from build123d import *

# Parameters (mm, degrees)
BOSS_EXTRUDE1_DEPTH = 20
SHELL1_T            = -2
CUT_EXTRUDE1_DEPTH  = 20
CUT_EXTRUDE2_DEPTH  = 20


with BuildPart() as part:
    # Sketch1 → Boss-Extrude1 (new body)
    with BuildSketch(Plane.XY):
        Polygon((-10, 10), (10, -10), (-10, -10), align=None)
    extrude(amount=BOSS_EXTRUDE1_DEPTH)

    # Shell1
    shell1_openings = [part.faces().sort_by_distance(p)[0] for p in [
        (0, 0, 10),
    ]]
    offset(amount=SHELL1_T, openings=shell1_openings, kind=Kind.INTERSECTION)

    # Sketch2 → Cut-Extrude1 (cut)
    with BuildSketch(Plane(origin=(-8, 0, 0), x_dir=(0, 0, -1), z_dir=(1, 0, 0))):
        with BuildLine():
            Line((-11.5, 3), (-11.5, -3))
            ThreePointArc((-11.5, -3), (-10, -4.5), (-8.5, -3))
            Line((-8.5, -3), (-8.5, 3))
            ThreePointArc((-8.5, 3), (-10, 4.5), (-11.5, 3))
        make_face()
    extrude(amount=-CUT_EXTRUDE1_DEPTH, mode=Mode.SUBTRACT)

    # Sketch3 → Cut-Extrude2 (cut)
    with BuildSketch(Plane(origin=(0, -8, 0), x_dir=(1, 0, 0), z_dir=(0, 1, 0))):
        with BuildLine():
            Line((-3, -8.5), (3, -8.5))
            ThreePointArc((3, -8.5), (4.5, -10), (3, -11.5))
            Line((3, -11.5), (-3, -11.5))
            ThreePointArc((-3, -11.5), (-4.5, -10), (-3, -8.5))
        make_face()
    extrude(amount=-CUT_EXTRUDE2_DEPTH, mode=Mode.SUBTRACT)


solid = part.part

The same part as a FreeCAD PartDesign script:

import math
import FreeCAD as App
import Part
import Sketcher
from FreeCAD import Vector
Q = App.Units.Quantity


def faces_at(feature, points):
    """Names of the faces that lie closest to the given points."""
    faces = feature.Shape.Faces
    near = lambda p: min(range(len(faces)), key=lambda i: faces[i].distToShape(Part.Vertex(*p))[0])
    return sorted({f"Face{near(p) + 1}" for p in points})

doc = App.newDocument("Part")
params = doc.addObject("Spreadsheet::Sheet", "Params")
for row, (alias, value) in enumerate([
    ("sketch1_width", "20 mm"),
    ("pad1_length", "20 mm"),
    ("thickness_wall", "2 mm"),
    ("sketch2_radius", "1.5 mm"),
    ("sketch2_width", "6 mm"),
    ("pocket1_length", "20 mm"),
    ("sketch3_radius", "1.5 mm"),
    ("sketch3_width", "6 mm"),
    ("pocket2_length", "20 mm"),
], start=1):
    params.set(f"A{row}", alias)
    params.set(f"B{row}", "=" + value)
    params.setAlias(f"B{row}", alias)

body = doc.addObject("PartDesign::Body", "Body")

# Sketch on XY plane
sketch1 = body.newObject("Sketcher::SketchObject", "Sketch")
sketch1.AttachmentSupport = (doc.getObject("XY_Plane"), [""])
sketch1.MapMode = "FlatFace"
sketch1.addGeometry([
    Part.LineSegment(Vector(10, -10, 0), Vector(-10, 10, 0)),
    Part.LineSegment(Vector(-10, 10, 0), Vector(-10, -10, 0)),
    Part.LineSegment(Vector(-10, -10, 0), Vector(10, -10, 0)),
], False)
sketch1.addConstraint([
    Sketcher.Constraint("Coincident", 0, 2, 1, 1),
    Sketcher.Constraint("Coincident", 1, 2, 2, 1),
    Sketcher.Constraint("Coincident", 2, 2, 0, 1),
    Sketcher.Constraint("Vertical", 1),
    Sketcher.Constraint("Horizontal", 2),
    Sketcher.Constraint("Symmetric", 0, 2, 2, 2, -1, 1),
    Sketcher.Constraint("Equal", 2, 1),
    Sketcher.Constraint("DistanceX", 2, 1, 2, 2, Q("20 mm")),
])
sketch1.setExpression("Constraints[7]", "Params.sketch1_width")
pad1 = body.newObject("PartDesign::Pad", "Pad")
pad1.Profile = sketch1
pad1.setExpression("Length", "Params.pad1_length")
doc.recompute()

thickness = body.newObject("PartDesign::Thickness", "Thickness")
thickness.Base = (pad1, faces_at(pad1, [(0, 0, 10)]))
thickness.setExpression("Value", "Params.thickness_wall")
thickness.Reversed = True
thickness.Join = "Intersection"

# Sketch on YZ plane
sketch2 = body.newObject("Sketcher::SketchObject", "Sketch001")
sketch2.AttachmentSupport = (doc.getObject("YZ_Plane"), [""])
sketch2.MapMode = "FlatFace"
sketch2.AttachmentOffset = App.Placement(Vector(0, 0, -8), App.Rotation())
sketch2.addGeometry([
    Part.LineSegment(Vector(3, 11.5, 0), Vector(-3, 11.5, 0)),
    Part.ArcOfCircle(Part.Circle(Vector(-3, 10, 0), Vector(0, 0, 1), 1.5), math.radians(90), math.radians(270)),
    Part.LineSegment(Vector(-3, 8.5, 0), Vector(3, 8.5, 0)),
    Part.ArcOfCircle(Part.Circle(Vector(3, 10, 0), Vector(0, 0, 1), 1.5), math.radians(-90), math.radians(90)),
], False)
sketch2.addConstraint([
    Sketcher.Constraint("Tangent", 0, 2, 1, 1),
    Sketcher.Constraint("Tangent", 1, 2, 2, 1),
    Sketcher.Constraint("Tangent", 2, 2, 3, 1),
    Sketcher.Constraint("Tangent", 3, 2, 0, 1),
    Sketcher.Constraint("Horizontal", 0),
    Sketcher.Constraint("Horizontal", 2),
    Sketcher.Constraint("Radius", 1, Q("1.5 mm")),
    Sketcher.Constraint("DistanceX", 0, 2, 0, 1, Q("6 mm")),
    Sketcher.Constraint("DistanceX", 1, 3, -1, 1, Q("3 mm")),
    Sketcher.Constraint("DistanceY", -1, 1, 1, 3, Q("10 mm")),
])
sketch2.setExpression("Constraints[6]", "Params.sketch2_radius")
sketch2.setExpression("Constraints[7]", "Params.sketch2_width")
pocket1 = body.newObject("PartDesign::Pocket", "Pocket")
pocket1.Profile = sketch2
pocket1.setExpression("Length", "Params.pocket1_length")

# Sketch on XZ plane
sketch3 = body.newObject("Sketcher::SketchObject", "Sketch002")
sketch3.AttachmentSupport = (doc.getObject("XZ_Plane"), [""])
sketch3.MapMode = "FlatFace"
sketch3.AttachmentOffset = App.Placement(Vector(0, 0, 8), App.Rotation())
sketch3.addGeometry([
    Part.LineSegment(Vector(3, 8.5, 0), Vector(-3, 8.5, 0)),
    Part.ArcOfCircle(Part.Circle(Vector(-3, 10, 0), Vector(0, 0, 1), 1.5), math.radians(90), math.radians(270)),
    Part.LineSegment(Vector(-3, 11.5, 0), Vector(3, 11.5, 0)),
    Part.ArcOfCircle(Part.Circle(Vector(3, 10, 0), Vector(0, 0, 1), 1.5), math.radians(-90), math.radians(90)),
], False)
sketch3.addConstraint([
    Sketcher.Constraint("Tangent", 0, 2, 1, 2),
    Sketcher.Constraint("Tangent", 1, 1, 2, 1),
    Sketcher.Constraint("Tangent", 2, 2, 3, 2),
    Sketcher.Constraint("Tangent", 3, 1, 0, 1),
    Sketcher.Constraint("Horizontal", 0),
    Sketcher.Constraint("Horizontal", 2),
    Sketcher.Constraint("Radius", 1, Q("1.5 mm")),
    Sketcher.Constraint("DistanceX", 0, 2, 0, 1, Q("6 mm")),
    Sketcher.Constraint("DistanceX", 1, 3, -1, 1, Q("3 mm")),
    Sketcher.Constraint("DistanceY", -1, 1, 1, 3, Q("10 mm")),
])
sketch3.setExpression("Constraints[6]", "Params.sketch3_radius")
sketch3.setExpression("Constraints[7]", "Params.sketch3_width")
pocket2 = body.newObject("PartDesign::Pocket", "Pocket001")
pocket2.Profile = sketch3
pocket2.setExpression("Length", "Params.pocket2_length")
pocket2.Reversed = True

doc.recompute()
